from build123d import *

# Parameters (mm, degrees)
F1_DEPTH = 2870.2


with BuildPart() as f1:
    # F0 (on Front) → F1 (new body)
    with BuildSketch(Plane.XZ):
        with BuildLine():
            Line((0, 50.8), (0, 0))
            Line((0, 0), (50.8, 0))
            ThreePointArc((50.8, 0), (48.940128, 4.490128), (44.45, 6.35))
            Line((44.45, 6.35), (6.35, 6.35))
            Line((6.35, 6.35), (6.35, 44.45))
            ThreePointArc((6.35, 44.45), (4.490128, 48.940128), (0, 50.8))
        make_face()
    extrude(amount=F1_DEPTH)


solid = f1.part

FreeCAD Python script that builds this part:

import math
import FreeCAD as App
import Part
import Sketcher
Q = App.Units.Quantity

doc = App.newDocument("Part")
body = doc.addObject("PartDesign::Body", "Body")

# Sketch on XZ plane
sketch1 = body.newObject("Sketcher::SketchObject", "Sketch")
sketch1.AttachmentSupport = (doc.getObject("XZ_Plane"), [""])
sketch1.MapMode = "FlatFace"
sketch1.addGeometry(Part.LineSegment(App.Vector(0, 51, 0), App.Vector(0, 0, 0)), False)
sketch1.addGeometry(Part.LineSegment(App.Vector(0, 0, 0), App.Vector(51, 0, 0)), False)
sketch1.addGeometry(Part.ArcOfCircle(Part.Circle(App.Vector(44, 0, 0), App.Vector(0, 0, 1), 6), math.radians(0), math.radians(90)), False)
sketch1.addGeometry(Part.LineSegment(App.Vector(44, 6, 0), App.Vector(6, 6, 0)), False)
sketch1.addGeometry(Part.LineSegment(App.Vector(6, 6, 0), App.Vector(6, 44, 0)), False)
sketch1.addGeometry(Part.ArcOfCircle(Part.Circle(App.Vector(0, 44, 0), App.Vector(0, 0, 1), 6), math.radians(0), math.radians(90)), False)
sketch1.addConstraint(Sketcher.Constraint("Coincident", 0, 2, 1, 1))
sketch1.addConstraint(Sketcher.Constraint("Coincident", 1, 2, 2, 1))
sketch1.addConstraint(Sketcher.Constraint("Tangent", 2, 2, 3, 1))
sketch1.addConstraint(Sketcher.Constraint("Coincident", 3, 2, 4, 1))
sketch1.addConstraint(Sketcher.Constraint("Tangent", 4, 2, 5, 1))
sketch1.addConstraint(Sketcher.Constraint("Coincident", 5, 2, 0, 1))
sketch1.addConstraint(Sketcher.Constraint("Vertical", 0))
sketch1.addConstraint(Sketcher.Constraint("Horizontal", 1))
sketch1.addConstraint(Sketcher.Constraint("Horizontal", 3))
sketch1.addConstraint(Sketcher.Constraint("Vertical", 4))
sketch1.addConstraint(Sketcher.Constraint("Coincident", 0, 2, -1, 1))
sketch1.addConstraint(Sketcher.Constraint("Equal", 2, 5))
sketch1.addConstraint(Sketcher.Constraint("PointOnObject", 2, 3, -1))
sketch1.addConstraint(Sketcher.Constraint("PointOnObject", 5, 3, -2))
sketch1.addConstraint(Sketcher.Constraint("Equal", 1, 0))
sketch1.addConstraint(Sketcher.Constraint("DistanceX", 1, 1, 1, 2, Q("2 in")))
sketch1.addConstraint(Sketcher.Constraint("Radius", 2, Q("0.25 in")))
pad1 = body.newObject("PartDesign::Pad", "Pad")
pad1.Profile = sketch1
pad1.Length = Q("113 in")

doc.recompute()
